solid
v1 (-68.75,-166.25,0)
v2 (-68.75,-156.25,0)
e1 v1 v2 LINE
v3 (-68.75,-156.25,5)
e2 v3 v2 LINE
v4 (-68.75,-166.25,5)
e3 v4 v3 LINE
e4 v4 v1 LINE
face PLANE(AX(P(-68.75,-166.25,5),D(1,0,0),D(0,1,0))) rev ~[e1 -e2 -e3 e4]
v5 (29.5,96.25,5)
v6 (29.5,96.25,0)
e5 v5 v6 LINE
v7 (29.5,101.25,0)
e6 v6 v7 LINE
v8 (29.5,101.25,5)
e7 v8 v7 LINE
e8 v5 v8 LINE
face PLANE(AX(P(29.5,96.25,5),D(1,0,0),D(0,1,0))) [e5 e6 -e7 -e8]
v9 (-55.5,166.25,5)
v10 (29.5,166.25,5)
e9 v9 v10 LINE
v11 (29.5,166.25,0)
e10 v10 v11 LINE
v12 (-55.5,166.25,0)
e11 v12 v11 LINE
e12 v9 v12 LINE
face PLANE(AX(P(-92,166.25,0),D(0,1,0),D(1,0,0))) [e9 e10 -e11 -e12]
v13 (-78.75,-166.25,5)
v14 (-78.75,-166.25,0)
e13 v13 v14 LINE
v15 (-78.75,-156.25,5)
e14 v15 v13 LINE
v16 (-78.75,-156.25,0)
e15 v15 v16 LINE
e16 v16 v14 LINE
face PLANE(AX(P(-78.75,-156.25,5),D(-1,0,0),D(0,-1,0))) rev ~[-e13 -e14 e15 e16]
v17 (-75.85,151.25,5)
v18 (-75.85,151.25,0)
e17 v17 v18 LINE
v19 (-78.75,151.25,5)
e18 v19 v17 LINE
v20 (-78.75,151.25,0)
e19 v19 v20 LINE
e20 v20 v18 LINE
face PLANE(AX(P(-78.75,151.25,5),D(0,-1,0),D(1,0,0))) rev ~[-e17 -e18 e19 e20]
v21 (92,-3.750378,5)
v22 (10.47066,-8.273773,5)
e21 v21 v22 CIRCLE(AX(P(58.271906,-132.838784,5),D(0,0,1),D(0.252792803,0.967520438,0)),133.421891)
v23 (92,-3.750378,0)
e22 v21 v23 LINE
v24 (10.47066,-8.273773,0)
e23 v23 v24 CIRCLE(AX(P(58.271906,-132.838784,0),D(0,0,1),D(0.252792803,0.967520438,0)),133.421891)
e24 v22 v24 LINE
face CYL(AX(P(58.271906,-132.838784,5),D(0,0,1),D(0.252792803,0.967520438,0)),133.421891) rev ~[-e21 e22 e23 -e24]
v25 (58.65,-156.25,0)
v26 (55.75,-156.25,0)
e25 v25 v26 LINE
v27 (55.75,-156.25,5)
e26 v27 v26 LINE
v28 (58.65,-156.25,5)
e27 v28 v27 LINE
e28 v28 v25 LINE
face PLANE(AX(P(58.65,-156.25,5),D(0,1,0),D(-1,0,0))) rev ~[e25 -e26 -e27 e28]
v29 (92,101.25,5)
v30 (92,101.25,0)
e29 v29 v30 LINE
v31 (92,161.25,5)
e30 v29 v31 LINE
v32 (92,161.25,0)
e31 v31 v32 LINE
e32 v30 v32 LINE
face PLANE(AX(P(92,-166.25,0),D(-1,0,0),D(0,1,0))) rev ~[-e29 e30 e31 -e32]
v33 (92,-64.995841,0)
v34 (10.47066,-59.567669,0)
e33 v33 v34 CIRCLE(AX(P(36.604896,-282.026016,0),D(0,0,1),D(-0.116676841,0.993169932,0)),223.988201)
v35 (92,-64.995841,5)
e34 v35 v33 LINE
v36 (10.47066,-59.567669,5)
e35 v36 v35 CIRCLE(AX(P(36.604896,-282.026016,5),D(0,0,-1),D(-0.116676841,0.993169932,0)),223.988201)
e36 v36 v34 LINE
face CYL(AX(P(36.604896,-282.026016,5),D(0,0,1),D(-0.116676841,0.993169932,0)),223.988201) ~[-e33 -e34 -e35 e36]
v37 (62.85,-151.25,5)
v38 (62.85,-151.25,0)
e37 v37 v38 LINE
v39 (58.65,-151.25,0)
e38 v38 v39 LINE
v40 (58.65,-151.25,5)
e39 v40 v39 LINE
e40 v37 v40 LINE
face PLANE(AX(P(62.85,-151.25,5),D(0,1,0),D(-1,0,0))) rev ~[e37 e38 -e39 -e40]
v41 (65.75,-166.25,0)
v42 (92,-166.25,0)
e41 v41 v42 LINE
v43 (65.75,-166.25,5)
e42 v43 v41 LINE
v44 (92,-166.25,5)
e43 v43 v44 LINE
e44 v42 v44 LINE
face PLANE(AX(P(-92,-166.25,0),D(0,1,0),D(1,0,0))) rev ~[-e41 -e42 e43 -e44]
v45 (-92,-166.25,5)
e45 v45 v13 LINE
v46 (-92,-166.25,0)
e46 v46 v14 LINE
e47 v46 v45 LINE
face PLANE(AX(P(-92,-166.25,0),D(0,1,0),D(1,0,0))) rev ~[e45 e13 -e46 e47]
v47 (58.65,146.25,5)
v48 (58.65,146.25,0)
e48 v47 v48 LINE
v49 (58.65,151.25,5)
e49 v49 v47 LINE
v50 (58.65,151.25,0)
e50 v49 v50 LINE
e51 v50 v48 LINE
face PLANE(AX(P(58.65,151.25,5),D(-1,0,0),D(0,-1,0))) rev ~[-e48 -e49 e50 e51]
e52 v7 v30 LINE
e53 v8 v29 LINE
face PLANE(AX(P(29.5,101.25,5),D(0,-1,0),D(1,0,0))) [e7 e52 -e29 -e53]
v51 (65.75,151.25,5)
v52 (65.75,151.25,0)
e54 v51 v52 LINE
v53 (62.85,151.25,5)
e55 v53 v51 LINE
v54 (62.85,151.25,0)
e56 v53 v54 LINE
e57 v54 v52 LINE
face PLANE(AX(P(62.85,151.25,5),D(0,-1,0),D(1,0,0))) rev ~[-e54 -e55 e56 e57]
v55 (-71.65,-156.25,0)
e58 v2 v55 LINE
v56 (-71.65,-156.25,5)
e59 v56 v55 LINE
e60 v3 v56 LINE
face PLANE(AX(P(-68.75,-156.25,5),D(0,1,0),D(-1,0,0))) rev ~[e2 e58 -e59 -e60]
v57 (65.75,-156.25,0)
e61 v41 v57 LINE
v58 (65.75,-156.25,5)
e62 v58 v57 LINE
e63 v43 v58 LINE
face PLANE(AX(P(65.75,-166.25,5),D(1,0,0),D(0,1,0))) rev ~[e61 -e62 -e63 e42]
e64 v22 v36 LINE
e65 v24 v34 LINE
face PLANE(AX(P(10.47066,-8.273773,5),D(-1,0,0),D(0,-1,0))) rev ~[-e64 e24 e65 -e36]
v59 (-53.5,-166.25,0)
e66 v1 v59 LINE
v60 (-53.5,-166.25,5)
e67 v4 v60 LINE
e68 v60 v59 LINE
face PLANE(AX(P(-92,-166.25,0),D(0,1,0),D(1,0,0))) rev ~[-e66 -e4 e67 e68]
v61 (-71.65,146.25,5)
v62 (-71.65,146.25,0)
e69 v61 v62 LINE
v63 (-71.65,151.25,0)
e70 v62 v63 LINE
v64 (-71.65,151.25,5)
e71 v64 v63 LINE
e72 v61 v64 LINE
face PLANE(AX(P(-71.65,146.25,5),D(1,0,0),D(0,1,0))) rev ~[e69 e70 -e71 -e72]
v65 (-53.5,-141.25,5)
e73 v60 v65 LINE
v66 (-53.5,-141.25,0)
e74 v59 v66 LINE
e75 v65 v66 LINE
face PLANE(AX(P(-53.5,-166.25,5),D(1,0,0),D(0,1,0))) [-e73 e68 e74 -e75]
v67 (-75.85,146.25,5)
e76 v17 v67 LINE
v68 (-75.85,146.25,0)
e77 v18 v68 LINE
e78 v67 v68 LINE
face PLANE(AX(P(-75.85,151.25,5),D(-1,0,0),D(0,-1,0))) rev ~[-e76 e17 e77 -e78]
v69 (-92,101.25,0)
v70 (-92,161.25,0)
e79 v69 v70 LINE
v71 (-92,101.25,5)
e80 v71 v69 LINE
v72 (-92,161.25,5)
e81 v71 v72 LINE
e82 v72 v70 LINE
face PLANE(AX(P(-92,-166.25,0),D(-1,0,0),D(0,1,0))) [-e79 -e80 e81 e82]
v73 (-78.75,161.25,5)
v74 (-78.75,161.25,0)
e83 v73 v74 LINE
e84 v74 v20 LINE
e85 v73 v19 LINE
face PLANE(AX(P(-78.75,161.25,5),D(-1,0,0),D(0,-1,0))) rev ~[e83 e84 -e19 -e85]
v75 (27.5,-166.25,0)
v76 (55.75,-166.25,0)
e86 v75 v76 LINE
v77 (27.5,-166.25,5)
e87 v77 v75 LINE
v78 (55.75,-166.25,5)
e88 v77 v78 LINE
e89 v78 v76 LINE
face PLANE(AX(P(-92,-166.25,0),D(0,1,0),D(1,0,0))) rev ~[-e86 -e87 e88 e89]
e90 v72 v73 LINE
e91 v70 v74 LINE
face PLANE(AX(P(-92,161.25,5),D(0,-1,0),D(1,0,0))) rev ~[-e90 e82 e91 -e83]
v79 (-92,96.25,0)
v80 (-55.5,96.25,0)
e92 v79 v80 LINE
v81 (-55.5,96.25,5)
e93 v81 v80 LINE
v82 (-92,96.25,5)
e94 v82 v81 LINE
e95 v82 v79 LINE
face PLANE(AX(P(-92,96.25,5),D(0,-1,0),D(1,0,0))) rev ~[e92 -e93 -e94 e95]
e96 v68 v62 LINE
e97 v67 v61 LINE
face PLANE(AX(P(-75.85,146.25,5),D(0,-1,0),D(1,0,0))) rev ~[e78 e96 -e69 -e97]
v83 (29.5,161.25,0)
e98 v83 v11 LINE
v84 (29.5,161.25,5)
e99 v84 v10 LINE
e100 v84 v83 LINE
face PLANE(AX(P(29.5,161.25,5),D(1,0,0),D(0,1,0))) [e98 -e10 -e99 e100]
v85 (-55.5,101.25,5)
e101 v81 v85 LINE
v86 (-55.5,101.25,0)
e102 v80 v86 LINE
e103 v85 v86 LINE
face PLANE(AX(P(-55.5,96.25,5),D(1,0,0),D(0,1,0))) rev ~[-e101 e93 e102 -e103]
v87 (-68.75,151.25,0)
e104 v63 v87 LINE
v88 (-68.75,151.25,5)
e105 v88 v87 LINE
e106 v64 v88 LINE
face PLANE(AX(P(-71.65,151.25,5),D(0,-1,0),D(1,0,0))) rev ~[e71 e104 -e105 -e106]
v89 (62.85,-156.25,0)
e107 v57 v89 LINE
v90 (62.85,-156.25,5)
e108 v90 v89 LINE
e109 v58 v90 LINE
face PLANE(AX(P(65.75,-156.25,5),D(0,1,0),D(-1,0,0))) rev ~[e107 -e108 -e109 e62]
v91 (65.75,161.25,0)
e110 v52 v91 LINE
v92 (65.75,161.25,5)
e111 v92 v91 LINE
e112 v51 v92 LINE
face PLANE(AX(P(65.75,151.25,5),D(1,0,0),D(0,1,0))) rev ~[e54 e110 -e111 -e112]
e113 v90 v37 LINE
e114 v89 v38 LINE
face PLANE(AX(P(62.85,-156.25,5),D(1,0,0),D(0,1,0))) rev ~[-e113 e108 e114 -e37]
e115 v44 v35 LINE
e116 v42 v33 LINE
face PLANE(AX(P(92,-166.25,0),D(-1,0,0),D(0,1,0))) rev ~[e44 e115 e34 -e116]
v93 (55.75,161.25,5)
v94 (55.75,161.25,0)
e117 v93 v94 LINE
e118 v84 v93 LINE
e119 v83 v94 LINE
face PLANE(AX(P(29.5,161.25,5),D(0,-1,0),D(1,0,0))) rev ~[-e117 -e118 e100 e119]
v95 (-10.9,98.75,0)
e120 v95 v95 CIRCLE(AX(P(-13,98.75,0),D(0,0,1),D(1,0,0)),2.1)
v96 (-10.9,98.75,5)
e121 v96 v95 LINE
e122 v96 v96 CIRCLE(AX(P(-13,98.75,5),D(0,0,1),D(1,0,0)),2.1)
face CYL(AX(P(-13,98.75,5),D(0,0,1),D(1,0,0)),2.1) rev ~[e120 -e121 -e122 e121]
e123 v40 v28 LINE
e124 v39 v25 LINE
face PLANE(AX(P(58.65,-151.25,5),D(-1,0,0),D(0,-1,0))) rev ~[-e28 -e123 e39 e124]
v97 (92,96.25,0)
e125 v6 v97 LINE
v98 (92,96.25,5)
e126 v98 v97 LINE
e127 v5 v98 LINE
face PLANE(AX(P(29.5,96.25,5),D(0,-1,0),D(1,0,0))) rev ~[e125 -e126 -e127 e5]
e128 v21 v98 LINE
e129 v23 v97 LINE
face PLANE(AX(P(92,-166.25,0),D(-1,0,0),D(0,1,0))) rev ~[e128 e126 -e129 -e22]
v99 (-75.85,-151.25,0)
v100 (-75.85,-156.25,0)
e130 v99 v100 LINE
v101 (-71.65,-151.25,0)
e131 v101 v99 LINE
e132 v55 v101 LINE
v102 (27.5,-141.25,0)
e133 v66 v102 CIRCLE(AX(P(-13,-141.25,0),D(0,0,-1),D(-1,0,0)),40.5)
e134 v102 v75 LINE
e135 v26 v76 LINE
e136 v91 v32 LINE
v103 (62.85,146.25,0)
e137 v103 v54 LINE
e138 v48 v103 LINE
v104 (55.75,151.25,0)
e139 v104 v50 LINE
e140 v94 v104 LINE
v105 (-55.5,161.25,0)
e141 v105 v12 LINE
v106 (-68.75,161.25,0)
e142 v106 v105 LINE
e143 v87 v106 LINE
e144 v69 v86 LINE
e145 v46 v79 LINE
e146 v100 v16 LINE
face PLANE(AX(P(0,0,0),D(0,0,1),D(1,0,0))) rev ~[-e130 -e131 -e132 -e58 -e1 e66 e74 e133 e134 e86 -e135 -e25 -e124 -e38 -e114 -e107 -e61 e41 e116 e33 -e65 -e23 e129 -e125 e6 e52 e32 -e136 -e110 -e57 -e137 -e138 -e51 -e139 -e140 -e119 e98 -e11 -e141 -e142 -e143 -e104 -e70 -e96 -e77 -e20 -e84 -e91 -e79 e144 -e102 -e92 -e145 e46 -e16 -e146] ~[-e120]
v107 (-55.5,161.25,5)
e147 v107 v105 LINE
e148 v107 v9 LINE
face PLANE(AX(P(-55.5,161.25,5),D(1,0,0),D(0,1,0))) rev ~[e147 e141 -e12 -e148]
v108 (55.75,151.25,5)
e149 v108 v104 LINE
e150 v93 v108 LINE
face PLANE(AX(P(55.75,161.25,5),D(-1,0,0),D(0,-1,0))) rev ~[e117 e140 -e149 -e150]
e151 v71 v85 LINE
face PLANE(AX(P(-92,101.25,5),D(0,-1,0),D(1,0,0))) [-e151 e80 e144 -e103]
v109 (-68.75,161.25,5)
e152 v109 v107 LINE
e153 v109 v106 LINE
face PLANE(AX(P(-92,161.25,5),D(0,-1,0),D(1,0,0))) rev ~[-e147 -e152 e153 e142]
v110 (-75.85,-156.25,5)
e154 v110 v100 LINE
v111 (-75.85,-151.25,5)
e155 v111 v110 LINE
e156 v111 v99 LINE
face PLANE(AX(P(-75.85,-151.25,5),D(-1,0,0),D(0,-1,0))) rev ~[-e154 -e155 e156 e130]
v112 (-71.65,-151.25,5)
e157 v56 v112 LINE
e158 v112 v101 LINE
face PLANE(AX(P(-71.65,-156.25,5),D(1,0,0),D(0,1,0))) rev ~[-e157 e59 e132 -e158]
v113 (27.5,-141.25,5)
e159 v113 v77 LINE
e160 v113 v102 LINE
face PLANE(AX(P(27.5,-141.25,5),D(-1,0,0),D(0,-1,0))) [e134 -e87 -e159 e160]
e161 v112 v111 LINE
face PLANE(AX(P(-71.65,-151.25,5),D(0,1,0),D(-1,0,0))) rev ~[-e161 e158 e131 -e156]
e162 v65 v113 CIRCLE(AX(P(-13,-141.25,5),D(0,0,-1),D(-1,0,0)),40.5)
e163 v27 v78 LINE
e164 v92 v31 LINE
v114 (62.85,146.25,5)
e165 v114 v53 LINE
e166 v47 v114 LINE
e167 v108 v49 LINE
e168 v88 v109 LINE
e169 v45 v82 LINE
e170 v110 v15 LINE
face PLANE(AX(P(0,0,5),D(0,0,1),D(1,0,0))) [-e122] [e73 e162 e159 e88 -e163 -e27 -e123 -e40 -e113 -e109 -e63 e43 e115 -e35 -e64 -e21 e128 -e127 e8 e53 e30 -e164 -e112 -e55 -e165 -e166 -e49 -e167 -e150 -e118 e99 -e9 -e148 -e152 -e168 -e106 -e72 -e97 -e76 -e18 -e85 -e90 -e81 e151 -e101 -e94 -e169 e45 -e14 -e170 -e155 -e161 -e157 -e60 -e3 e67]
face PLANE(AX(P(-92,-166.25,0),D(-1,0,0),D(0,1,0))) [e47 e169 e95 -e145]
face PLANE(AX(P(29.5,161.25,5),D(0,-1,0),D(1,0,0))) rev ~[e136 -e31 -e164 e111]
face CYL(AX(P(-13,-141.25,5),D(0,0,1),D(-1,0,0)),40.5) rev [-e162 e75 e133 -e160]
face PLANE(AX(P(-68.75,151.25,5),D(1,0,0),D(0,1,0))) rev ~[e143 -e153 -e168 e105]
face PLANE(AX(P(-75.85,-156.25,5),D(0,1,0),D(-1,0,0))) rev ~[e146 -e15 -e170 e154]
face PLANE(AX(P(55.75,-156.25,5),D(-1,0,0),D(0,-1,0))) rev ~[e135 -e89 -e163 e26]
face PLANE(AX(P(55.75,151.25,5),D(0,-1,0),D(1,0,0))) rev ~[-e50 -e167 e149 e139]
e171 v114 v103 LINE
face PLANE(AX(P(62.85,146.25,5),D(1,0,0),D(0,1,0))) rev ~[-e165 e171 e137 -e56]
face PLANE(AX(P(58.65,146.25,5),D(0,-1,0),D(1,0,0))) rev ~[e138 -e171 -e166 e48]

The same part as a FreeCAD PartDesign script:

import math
import FreeCAD as App
import Part
import Sketcher


def add_polygon(sketch, points):
    """Adds a closed chain of lines whose ends are joined by coincident constraints."""
    first, n = sketch.GeometryCount, len(points)
    for a, b in zip(points, points[1:] + points[:1]):
        sketch.addGeometry(Part.LineSegment(App.Vector(*a, 0), App.Vector(*b, 0)), False)
    for i in range(n):
        sketch.addConstraint(Sketcher.Constraint("Coincident", first + i, 2, first + (i + 1) % n, 1))

doc = App.newDocument("Part")
body = doc.addObject("PartDesign::Body", "Body")

# Sketch on XY plane
sketch1 = body.newObject("Sketcher::SketchObject", "Sketch")
sketch1.AttachmentSupport = (doc.getObject("XY_Plane"), [""])
sketch1.MapMode = "FlatFace"
add_polygon(sketch1, [(-92, 166), (-92, -166), (92, -166), (92, 166)])  # lines 0-3
sketch1.addConstraint([
    Sketcher.Constraint("Vertical", 0),
    Sketcher.Constraint("Horizontal", 1),
    Sketcher.Constraint("Vertical", 2),
    Sketcher.Constraint("Horizontal", 3),
    Sketcher.Constraint("Symmetric", 0, 2, 2, 2, -1, 1),
    Sketcher.Constraint("DistanceX", 1, 1, 1, 2, 184.0),
    Sketcher.Constraint("DistanceY", 0, 2, 0, 1, 332.5),
])
pad1 = body.newObject("PartDesign::Pad", "Pad")
pad1.Profile = sketch1
pad1.Length = 5

# Sketch on XY plane
sketch2 = body.newObject("Sketcher::SketchObject", "Sketch001")
sketch2.AttachmentSupport = (doc.getObject("XY_Plane"), [""])
sketch2.MapMode = "FlatFace"
sketch2.AttachmentOffset = App.Placement(App.Vector(0, 0, 5), App.Rotation())
add_polygon(sketch2, [(-92, 166), (-92, 161), (-56, 161), (-56, 166)])  # lines 0-3
add_polygon(sketch2, [(30, 166), (30, 161), (92, 161), (92, 166)])  # lines 4-7
add_polygon(sketch2, [(30, 101), (30, 96), (92, 96), (92, 101)])  # lines 8-11
sketch2.addGeometry(Part.LineSegment(App.Vector(28, -166, 0), App.Vector(28, -141, 0)), False)  # 12
sketch2.addGeometry(Part.ArcOfCircle(Part.Circle(App.Vector(-13, -141, 0), App.Vector(0, 0, 1), 40), math.radians(0), math.radians(180)), False)  # 13
sketch2.addGeometry(Part.LineSegment(App.Vector(-54, -141, 0), App.Vector(-54, -166, 0)), False)  # 14
sketch2.addGeometry(Part.LineSegment(App.Vector(-54, -166, 0), App.Vector(28, -166, 0)), False)  # 15
add_polygon(sketch2, [(-92, 101), (-92, 96), (-56, 96), (-56, 101)])  # lines 16-19
sketch2.addConstraint([
    Sketcher.Constraint("Tangent", 12, 2, 13, 1),
    Sketcher.Constraint("Tangent", 13, 2, 14, 1),
    Sketcher.Constraint("Coincident", 14, 2, 15, 1),
    Sketcher.Constraint("Coincident", 15, 2, 12, 1),
    Sketcher.Constraint("Vertical", 0),
    Sketcher.Constraint("Horizontal", 1),
    Sketcher.Constraint("Vertical", 2),
    Sketcher.Constraint("Horizontal", 3),
    Sketcher.Constraint("Vertical", 4),
    Sketcher.Constraint("Horizontal", 5),
    Sketcher.Constraint("Vertical", 6),
    Sketcher.Constraint("Horizontal", 7),
    Sketcher.Constraint("Vertical", 8),
    Sketcher.Constraint("Horizontal", 9),
    Sketcher.Constraint("Vertical", 10),
    Sketcher.Constraint("Horizontal", 11),
    Sketcher.Constraint("Vertical", 12),
    Sketcher.Constraint("Vertical", 14),
    Sketcher.Constraint("Horizontal", 15),
    Sketcher.Constraint("Vertical", 16),
    Sketcher.Constraint("Horizontal", 17),
    Sketcher.Constraint("Vertical", 18),
    Sketcher.Constraint("Horizontal", 19),
    Sketcher.Constraint("Symmetric", 0, 2, 5, 2, -2),
    Sketcher.Constraint("Symmetric", 9, 2, 16, 2, -2),
    Sketcher.Constraint("Horizontal", 3, 2, 6, 2),
    Sketcher.Constraint("Horizontal", 11, 2, 18, 2),
    Sketcher.Constraint("Vertical", 7, 2, 8, 2),
    Sketcher.Constraint("Vertical", 6, 2, 9, 2),
    Sketcher.Constraint("Vertical", 2, 2, 17, 2),
    Sketcher.Constraint("Equal", 6, 8),
    Sketcher.Constraint("Radius", 13, 40.5),
    Sketcher.Constraint("DistanceY", 0, 2, 0, 1, 5.0),
    Sketcher.Constraint("DistanceY", 12, 1, 12, 2, 25.0),
    Sketcher.Constraint("DistanceX", 1, 1, 1, 2, 36.5),
    Sketcher.Constraint("DistanceX", 5, 1, 5, 2, 62.5),
    Sketcher.Constraint("DistanceX", 13, 3, -1, 1, 13.0),
    Sketcher.Constraint("DistanceX", 0, 2, -1, 1, 92.0),
    Sketcher.Constraint("DistanceY", 8, 2, 4, 2, 65.0),
    Sketcher.Constraint("DistanceY", 13, 3, 0, 2, 302.5),
    Sketcher.Constraint("DistanceY", 13, 3, -1, 1, 141.25),
])
pocket1 = body.newObject("PartDesign::Pocket", "Pocket")
pocket1.Profile = sketch2
pocket1.Length = 5

# Sketch on XY plane
sketch3 = body.newObject("Sketcher::SketchObject", "Sketch002")
sketch3.AttachmentSupport = (doc.getObject("XY_Plane"), [""])
sketch3.MapMode = "FlatFace"
sketch3.AttachmentOffset = App.Placement(App.Vector(0, 0, 5), App.Rotation())
add_polygon(sketch3, [(55.8, 161.2), (55.8, 151.2), (58.6, 151.2), (58.6, 146.2), (62.9, 146.2), (62.9, 151.2), (65.8, 151.2), (65.8, 161.2)])  # lines 0-7
add_polygon(sketch3, [(-78.8, 161.2), (-78.8, 151.2), (-75.8, 151.2), (-75.8, 146.2), (-71.7, 146.2), (-71.7, 151.2), (-68.8, 151.2), (-68.8, 161.2)])  # lines 8-15
add_polygon(sketch3, [(65.8, -166.2), (65.8, -156.2), (62.9, -156.2), (62.9, -151.2), (58.6, -151.2), (58.6, -156.2), (55.8, -156.2), (55.8, -166.2)])  # lines 16-23
add_polygon(sketch3, [(-68.8, -166.2), (-68.8, -156.2), (-71.7, -156.2), (-71.7, -151.2), (-75.8, -151.2), (-75.8, -156.2), (-78.8, -156.2), (-78.8, -166.2)])  # lines 24-31
sketch3.addConstraint([
    Sketcher.Constraint("Vertical", 0),
    Sketcher.Constraint("Horizontal", 1),
    Sketcher.Constraint("Vertical", 2),
    Sketcher.Constraint("Horizontal", 3),
    Sketcher.Constraint("Vertical", 4),
    Sketcher.Constraint("Horizontal", 5),
    Sketcher.Constraint("Vertical", 6),
    Sketcher.Constraint("Horizontal", 7),
    Sketcher.Constraint("Vertical", 8),
    Sketcher.Constraint("Horizontal", 9),
    Sketcher.Constraint("Vertical", 10),
    Sketcher.Constraint("Horizontal", 11),
    Sketcher.Constraint("Vertical", 12),
    Sketcher.Constraint("Horizontal", 13),
    Sketcher.Constraint("Vertical", 14),
    Sketcher.Constraint("Horizontal", 15),
    Sketcher.Constraint("Vertical", 16),
    Sketcher.Constraint("Horizontal", 17),
    Sketcher.Constraint("Vertical", 18),
    Sketcher.Constraint("Horizontal", 19),
    Sketcher.Constraint("Vertical", 20),
    Sketcher.Constraint("Horizontal", 21),
    Sketcher.Constraint("Vertical", 22),
    Sketcher.Constraint("Horizontal", 23),
    Sketcher.Constraint("Vertical", 24),
    Sketcher.Constraint("Horizontal", 25),
    Sketcher.Constraint("Vertical", 26),
    Sketcher.Constraint("Horizontal", 27),
    Sketcher.Constraint("Vertical", 28),
    Sketcher.Constraint("Horizontal", 29),
    Sketcher.Constraint("Vertical", 30),
    Sketcher.Constraint("Horizontal", 31),
    Sketcher.Constraint("Symmetric", 4, 2, 18, 2, -1),
    Sketcher.Constraint("Symmetric", 1, 2, 19, 2, -1),
    Sketcher.Constraint("Symmetric", 12, 2, 26, 2, -1),
    Sketcher.Constraint("Symmetric", 9, 2, 27, 2, -1),
    Sketcher.Constraint("Horizontal", 5, 2, 8, 2),
    Sketcher.Constraint("Horizontal", 3, 2, 10, 2),
    Sketcher.Constraint("Horizontal", 7, 2, 14, 2),
    Sketcher.Constraint("Horizontal", 17, 2, 20, 2),
    Sketcher.Constraint("Horizontal", 21, 2, 24, 2),
    Sketcher.Constraint("Horizontal", 25, 2, 28, 2),
    Sketcher.Constraint("Horizontal", 23, 2, 30, 2),
    Sketcher.Constraint("Vertical", 6, 2, 16, 2),
    Sketcher.Constraint("Vertical", 7, 2, 21, 2),
    Sketcher.Constraint("Vertical", 14, 2, 24, 2),
    Sketcher.Constraint("Vertical", 15, 2, 29, 2),
    Sketcher.Constraint("Equal", 1, 5),
    Sketcher.Constraint("Equal", 5, 9),
    Sketcher.Constraint("Equal", 3, 11),
    Sketcher.Constraint("Equal", 9, 13),
    Sketcher.Constraint("Equal", 31, 0),
    Sketcher.Constraint("Equal", 14, 16),
    Sketcher.Constraint("Equal", 12, 18),
    Sketcher.Constraint("DistanceX", 7, 2, 7, 1, 10.0),
    Sketcher.Constraint("DistanceY", 2, 2, 2, 1, 5.0),
    Sketcher.Constraint("DistanceX", 1, 1, 1, 2, 2.9),
    Sketcher.Constraint("DistanceX", 8, 2, 0, 2, 134.5),
    Sketcher.Constraint("DistanceY", 16, 2, 3, 2, 302.5),
    Sketcher.Constraint("DistanceX", -1, 1, 0, 2, 55.75),
])
pocket2 = body.newObject("PartDesign::Pocket", "Pocket001")
pocket2.Profile = sketch3
pocket2.Length = 10

# Sketch on XY plane
sketch4 = body.newObject("Sketcher::SketchObject", "Sketch003")
sketch4.AttachmentSupport = (doc.getObject("XY_Plane"), [""])
sketch4.MapMode = "FlatFace"
sketch4.AttachmentOffset = App.Placement(App.Vector(0, 0, 5), App.Rotation())
sketch4.addGeometry(Part.Circle(App.Vector(-13, 98.8, 0), App.Vector(0, 0, 1), 2.1), False)
sketch4.addConstraint([
    Sketcher.Constraint("Diameter", 0, 4.2),
    Sketcher.Constraint("DistanceX", 0, 3, -1, 1, 13.0),
    Sketcher.Constraint("DistanceY", -1, 1, 0, 3, 98.75),
])
pocket3 = body.newObject("PartDesign::Pocket", "Pocket002")
pocket3.Profile = sketch4
pocket3.Length = 10

# Sketch on XY plane
sketch5 = body.newObject("Sketcher::SketchObject", "Sketch004")
sketch5.AttachmentSupport = (doc.getObject("XY_Plane"), [""])
sketch5.MapMode = "FlatFace"
sketch5.AttachmentOffset = App.Placement(App.Vector(0, 0, 5), App.Rotation())
sketch5.addGeometry([
    Part.LineSegment(App.Vector(10, -8, 0), App.Vector(10, -60, 0)),
    Part.ArcOfCircle(Part.Circle(App.Vector(37, -282, 0), App.Vector(0, 0, 1), 224), math.radians(76), math.radians(97)),
    Part.LineSegment(App.Vector(92, -65, 0), App.Vector(92, -4, 0)),
    Part.ArcOfCircle(Part.Circle(App.Vector(58, -133, 0), App.Vector(0, 0, 1), 133), math.radians(75), math.radians(111)),
], False)
sketch5.addConstraint([
    Sketcher.Constraint("Coincident", 0, 2, 1, 2),
    Sketcher.Constraint("Coincident", 1, 1, 2, 1),
    Sketcher.Constraint("Coincident", 2, 2, 3, 1),
    Sketcher.Constraint("Coincident", 3, 2, 0, 1),
    Sketcher.Constraint("Vertical", 0),
    Sketcher.Constraint("Vertical", 2),
    Sketcher.Constraint("DistanceX", -1, 1, 1, 1, 92.0),
    Sketcher.Constraint("Radius", 1, 223.988201),
    Sketcher.Constraint("Radius", 3, 133.421891),
    Sketcher.Constraint("DistanceY", 0, 2, 0, 1, 51.293896),
    Sketcher.Constraint("DistanceY", 2, 1, 2, 2, 61.245464),
    Sketcher.Constraint("DistanceX", -1, 1, 0, 2, 10.47066),
    Sketcher.Constraint("DistanceY", 0, 2, -1, 1, 59.567669),
    Sketcher.Constraint("DistanceY", 1, 1, -1, 1, 64.995841),
])
pocket4 = body.newObject("PartDesign::Pocket", "Pocket003")
pocket4.Profile = sketch5
pocket4.Length = 10

doc.recompute()
